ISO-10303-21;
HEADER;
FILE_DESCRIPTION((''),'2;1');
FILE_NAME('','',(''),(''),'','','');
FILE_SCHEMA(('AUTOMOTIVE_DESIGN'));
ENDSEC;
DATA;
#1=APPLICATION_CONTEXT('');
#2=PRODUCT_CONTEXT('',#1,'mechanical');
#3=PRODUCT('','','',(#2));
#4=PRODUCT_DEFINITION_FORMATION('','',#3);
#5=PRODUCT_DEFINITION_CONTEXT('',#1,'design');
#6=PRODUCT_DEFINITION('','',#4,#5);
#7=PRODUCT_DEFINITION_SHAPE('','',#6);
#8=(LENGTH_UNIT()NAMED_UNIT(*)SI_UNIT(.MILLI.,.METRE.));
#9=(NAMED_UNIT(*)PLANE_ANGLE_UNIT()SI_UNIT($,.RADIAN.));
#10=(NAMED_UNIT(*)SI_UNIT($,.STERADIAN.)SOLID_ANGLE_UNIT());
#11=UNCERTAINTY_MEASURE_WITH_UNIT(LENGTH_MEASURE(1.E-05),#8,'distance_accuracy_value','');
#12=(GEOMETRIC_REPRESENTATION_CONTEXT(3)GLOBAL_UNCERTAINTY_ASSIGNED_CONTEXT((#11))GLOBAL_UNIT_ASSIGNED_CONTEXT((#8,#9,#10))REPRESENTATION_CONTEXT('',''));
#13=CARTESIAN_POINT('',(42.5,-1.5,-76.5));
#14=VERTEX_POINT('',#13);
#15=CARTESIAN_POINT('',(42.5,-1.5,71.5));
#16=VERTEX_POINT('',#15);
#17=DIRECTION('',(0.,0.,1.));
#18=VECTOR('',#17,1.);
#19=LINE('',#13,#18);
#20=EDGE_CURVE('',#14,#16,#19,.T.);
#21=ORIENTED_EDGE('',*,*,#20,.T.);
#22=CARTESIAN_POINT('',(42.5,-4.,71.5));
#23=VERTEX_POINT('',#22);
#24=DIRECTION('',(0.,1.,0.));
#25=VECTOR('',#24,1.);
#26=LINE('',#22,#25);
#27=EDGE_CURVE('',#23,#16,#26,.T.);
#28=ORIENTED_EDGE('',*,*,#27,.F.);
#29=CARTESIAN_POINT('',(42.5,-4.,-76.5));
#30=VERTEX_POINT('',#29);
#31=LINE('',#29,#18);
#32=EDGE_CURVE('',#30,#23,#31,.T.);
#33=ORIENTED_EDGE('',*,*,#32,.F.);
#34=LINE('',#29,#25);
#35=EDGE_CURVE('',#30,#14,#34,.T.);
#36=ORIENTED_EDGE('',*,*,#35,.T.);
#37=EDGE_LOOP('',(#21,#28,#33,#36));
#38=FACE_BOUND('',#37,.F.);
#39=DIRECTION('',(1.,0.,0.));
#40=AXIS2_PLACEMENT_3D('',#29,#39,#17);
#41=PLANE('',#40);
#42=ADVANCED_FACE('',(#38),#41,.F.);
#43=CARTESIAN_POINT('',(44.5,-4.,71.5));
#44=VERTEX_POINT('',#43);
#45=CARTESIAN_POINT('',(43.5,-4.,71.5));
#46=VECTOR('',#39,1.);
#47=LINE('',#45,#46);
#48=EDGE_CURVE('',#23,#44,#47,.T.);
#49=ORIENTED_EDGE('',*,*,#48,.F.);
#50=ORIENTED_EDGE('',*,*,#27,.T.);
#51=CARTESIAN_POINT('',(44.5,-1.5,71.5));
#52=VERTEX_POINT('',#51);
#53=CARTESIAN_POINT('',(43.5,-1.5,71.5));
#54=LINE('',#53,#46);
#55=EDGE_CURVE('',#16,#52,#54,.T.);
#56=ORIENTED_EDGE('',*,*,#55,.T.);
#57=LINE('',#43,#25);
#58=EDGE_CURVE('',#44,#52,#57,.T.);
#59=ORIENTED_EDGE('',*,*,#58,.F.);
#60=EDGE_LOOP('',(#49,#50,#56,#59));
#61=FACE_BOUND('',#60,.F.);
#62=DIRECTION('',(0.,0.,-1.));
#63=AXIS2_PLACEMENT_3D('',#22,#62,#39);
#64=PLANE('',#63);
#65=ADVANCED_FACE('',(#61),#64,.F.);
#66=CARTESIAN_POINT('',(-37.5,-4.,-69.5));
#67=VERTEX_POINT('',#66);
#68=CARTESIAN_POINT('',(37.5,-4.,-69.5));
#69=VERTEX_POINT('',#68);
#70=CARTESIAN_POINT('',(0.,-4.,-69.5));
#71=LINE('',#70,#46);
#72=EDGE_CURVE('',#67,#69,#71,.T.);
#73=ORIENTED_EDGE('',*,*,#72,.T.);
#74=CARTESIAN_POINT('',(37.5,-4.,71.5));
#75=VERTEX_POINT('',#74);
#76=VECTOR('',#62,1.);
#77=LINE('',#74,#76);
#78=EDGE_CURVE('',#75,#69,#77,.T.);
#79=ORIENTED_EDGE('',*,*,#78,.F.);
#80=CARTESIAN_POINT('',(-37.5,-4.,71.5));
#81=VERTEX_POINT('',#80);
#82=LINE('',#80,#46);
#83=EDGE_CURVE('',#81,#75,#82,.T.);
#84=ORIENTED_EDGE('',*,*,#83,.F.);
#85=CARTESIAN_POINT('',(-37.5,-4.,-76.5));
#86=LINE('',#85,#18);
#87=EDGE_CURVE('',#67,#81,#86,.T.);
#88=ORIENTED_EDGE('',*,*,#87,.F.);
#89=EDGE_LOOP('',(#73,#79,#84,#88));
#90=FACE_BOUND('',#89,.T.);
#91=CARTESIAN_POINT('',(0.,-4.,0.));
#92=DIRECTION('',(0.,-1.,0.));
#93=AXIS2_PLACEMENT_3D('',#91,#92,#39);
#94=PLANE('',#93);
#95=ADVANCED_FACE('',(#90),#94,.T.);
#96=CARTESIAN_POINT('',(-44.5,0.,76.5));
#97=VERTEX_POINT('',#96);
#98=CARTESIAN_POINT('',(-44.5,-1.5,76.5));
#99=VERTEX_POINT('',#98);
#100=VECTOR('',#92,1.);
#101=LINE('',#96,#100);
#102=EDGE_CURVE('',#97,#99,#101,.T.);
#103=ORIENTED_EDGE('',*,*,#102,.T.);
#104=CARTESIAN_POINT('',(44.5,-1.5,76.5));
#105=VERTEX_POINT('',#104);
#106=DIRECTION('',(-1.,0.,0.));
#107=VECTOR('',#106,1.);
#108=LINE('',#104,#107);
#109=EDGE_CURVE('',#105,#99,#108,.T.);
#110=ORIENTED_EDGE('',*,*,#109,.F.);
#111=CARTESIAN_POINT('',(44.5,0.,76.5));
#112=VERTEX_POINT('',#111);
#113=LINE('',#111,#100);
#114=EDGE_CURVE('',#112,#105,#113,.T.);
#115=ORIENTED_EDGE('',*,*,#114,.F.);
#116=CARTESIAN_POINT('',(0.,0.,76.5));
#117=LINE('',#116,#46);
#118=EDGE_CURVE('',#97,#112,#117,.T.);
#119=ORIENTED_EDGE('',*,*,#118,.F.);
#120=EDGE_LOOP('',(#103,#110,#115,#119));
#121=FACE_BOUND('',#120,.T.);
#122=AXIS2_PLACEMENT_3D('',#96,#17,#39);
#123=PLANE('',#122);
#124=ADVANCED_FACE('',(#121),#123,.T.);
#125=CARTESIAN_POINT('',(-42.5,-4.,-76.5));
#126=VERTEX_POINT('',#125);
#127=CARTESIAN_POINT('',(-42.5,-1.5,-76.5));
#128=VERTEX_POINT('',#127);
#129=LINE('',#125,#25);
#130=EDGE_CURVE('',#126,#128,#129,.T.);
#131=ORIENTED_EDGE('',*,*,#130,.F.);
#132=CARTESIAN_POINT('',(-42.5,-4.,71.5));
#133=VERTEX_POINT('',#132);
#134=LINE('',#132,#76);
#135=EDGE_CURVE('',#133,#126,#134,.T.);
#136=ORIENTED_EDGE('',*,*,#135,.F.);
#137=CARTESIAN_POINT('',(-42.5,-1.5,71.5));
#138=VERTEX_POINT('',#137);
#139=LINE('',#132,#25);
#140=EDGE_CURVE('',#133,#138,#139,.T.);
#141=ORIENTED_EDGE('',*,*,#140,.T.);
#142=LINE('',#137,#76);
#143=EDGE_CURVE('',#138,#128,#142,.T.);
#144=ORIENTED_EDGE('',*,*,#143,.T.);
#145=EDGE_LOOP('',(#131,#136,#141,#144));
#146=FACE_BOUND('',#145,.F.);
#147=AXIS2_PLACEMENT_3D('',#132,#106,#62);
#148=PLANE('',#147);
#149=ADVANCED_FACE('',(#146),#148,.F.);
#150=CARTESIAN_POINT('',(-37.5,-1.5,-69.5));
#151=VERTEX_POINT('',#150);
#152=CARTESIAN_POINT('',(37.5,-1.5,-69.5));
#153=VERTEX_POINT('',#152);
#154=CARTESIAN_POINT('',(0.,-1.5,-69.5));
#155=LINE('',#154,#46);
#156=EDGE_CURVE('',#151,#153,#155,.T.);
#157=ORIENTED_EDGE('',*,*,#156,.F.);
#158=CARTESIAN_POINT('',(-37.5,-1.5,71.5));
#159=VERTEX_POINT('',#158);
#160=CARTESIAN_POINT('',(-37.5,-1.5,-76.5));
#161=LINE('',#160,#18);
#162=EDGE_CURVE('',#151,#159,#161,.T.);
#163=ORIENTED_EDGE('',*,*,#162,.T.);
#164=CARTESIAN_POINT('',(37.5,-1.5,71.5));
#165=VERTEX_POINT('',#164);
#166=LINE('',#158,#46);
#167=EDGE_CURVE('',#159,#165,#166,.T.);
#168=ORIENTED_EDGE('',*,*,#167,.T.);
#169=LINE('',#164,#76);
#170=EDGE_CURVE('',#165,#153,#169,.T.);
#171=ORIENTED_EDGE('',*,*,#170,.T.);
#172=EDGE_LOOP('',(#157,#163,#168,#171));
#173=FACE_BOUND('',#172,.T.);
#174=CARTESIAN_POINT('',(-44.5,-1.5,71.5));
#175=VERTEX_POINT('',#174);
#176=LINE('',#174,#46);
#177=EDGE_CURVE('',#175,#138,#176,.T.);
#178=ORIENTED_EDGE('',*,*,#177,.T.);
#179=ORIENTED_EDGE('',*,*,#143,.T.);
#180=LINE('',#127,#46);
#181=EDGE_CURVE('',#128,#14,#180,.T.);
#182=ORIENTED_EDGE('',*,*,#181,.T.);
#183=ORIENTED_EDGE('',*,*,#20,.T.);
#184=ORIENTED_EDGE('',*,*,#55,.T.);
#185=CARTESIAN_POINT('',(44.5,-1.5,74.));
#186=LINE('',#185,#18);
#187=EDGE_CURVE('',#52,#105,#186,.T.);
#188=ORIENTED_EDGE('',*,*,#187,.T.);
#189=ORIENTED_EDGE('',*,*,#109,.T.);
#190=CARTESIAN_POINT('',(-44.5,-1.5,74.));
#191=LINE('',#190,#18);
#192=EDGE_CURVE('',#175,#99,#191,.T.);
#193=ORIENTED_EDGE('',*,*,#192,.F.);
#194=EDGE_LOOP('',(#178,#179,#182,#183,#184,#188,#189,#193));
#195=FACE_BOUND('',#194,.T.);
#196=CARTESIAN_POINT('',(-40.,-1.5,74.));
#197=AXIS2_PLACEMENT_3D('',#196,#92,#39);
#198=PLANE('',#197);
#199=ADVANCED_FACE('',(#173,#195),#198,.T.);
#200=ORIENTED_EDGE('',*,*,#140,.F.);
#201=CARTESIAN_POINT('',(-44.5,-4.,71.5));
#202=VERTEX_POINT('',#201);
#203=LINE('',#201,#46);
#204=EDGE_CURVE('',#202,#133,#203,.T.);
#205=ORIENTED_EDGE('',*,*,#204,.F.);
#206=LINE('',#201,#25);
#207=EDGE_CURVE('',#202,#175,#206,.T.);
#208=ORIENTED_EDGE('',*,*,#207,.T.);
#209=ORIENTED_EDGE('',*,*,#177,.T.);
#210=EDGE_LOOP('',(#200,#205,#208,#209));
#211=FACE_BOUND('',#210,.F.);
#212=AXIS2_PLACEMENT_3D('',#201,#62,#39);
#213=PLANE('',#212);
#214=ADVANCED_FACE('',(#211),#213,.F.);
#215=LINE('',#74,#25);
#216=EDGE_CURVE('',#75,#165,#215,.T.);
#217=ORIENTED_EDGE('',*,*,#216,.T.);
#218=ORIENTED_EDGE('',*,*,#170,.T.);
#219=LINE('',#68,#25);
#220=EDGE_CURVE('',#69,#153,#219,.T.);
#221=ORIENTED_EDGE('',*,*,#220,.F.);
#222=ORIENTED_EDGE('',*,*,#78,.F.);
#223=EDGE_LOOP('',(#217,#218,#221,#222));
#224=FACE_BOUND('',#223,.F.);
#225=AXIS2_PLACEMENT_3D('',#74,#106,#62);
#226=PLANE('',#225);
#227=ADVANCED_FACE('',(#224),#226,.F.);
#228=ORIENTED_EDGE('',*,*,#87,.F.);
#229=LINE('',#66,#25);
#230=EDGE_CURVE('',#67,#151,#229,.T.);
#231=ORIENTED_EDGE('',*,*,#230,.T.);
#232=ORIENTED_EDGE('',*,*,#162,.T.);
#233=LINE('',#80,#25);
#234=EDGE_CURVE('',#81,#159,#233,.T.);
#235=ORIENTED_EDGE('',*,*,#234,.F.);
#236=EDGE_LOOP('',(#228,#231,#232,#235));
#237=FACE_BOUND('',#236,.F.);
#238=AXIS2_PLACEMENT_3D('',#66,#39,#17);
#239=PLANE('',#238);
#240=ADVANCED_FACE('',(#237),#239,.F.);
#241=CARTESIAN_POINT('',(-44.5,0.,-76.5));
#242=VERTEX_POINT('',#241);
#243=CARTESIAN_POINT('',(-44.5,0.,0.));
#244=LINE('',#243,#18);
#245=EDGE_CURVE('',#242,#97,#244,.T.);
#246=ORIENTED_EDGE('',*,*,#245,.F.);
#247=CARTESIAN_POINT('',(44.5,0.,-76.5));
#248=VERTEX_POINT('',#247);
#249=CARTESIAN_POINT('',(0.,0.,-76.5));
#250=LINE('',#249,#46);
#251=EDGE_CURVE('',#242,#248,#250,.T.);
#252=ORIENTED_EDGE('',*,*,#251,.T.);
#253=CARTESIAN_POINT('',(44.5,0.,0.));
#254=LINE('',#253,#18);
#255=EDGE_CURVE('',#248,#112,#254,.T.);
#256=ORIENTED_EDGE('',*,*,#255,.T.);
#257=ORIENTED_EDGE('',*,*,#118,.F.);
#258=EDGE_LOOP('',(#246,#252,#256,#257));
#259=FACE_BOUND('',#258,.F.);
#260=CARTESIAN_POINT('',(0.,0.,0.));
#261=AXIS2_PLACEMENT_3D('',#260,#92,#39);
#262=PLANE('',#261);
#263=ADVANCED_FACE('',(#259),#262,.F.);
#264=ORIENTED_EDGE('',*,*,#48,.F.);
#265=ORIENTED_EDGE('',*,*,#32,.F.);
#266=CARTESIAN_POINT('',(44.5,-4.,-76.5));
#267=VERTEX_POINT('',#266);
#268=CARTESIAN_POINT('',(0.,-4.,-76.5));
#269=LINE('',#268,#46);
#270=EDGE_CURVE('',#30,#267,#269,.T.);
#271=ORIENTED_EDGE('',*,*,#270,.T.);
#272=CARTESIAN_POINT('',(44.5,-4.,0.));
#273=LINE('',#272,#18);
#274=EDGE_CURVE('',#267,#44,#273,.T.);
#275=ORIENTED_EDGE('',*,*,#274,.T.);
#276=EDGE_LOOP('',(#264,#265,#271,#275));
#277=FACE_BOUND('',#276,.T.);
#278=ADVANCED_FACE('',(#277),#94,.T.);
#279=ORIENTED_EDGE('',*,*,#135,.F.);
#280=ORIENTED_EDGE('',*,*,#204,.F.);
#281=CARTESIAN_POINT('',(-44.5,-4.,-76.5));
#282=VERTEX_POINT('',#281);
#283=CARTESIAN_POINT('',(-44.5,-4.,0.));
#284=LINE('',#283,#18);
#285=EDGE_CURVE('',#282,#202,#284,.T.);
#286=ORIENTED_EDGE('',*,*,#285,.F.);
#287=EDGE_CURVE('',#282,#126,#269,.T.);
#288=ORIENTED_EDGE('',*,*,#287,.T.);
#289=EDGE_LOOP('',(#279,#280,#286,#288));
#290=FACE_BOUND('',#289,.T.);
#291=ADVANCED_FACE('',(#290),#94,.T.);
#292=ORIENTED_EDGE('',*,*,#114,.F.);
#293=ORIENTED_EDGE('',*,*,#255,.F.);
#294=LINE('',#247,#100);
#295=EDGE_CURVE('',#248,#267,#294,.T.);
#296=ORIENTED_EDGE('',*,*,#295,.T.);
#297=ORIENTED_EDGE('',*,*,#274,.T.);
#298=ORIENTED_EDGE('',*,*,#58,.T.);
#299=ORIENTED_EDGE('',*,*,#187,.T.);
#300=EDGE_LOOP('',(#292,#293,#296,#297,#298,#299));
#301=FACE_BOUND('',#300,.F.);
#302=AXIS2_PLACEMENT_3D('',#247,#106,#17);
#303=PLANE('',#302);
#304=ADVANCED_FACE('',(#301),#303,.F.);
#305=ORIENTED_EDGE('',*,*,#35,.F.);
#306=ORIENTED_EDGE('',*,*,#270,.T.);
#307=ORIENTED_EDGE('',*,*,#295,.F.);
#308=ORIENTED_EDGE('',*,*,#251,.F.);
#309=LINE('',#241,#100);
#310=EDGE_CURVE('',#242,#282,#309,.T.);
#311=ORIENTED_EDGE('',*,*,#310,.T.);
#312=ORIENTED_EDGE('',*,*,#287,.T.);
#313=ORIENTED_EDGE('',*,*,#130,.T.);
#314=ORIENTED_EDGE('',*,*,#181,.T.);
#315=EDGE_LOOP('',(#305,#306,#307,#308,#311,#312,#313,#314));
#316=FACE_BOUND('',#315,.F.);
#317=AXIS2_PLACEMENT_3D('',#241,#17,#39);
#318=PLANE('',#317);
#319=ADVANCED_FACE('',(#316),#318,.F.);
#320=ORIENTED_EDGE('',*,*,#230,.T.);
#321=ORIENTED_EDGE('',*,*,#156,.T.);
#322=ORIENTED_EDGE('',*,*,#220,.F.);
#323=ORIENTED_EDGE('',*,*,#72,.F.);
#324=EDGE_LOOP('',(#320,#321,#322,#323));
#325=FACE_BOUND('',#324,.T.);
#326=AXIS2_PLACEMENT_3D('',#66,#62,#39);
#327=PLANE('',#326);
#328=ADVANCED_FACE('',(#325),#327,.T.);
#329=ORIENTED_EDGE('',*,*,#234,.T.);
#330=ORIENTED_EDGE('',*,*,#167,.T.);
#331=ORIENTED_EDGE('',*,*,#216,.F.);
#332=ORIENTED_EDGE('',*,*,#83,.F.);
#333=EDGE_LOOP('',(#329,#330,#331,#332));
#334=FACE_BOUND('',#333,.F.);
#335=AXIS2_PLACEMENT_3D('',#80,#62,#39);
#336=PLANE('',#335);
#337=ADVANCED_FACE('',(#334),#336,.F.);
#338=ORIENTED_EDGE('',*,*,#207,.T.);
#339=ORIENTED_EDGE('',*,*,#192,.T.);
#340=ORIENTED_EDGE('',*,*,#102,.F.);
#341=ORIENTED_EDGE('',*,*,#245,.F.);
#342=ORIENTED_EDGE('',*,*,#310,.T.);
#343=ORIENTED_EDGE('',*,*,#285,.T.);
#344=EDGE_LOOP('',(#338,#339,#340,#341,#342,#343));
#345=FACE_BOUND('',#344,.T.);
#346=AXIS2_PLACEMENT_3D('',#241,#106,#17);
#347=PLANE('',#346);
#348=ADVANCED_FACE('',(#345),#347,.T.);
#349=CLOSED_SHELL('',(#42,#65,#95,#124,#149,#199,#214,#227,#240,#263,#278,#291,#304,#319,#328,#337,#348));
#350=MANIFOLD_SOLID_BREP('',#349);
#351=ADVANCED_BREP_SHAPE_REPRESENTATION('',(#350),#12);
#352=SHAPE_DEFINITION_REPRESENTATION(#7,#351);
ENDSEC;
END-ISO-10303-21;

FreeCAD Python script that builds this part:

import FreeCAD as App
import Part
import Sketcher
from FreeCAD import Vector

doc = App.newDocument("Part")
body = doc.addObject("PartDesign::Body", "Body")

# Sketch on XZ plane
sketch1 = doc.addObject("Sketcher::SketchObject", "Sketch")
body.addObject(sketch1)
sketch1.AttachmentSupport = (doc.XZ_Plane, [""])
sketch1.MapMode = "FlatFace"
sketch1.addGeometry(Part.LineSegment(Vector(-44, 76, 0), Vector(-44, -76, 0)), False)
sketch1.addGeometry(Part.LineSegment(Vector(-44, -76, 0), Vector(44, -76, 0)), False)
sketch1.addGeometry(Part.LineSegment(Vector(44, -76, 0), Vector(44, 76, 0)), False)
sketch1.addGeometry(Part.LineSegment(Vector(44, 76, 0), Vector(-44, 76, 0)), False)
sketch1.addConstraint(Sketcher.Constraint("Coincident", 0, 2, 1, 1))
sketch1.addConstraint(Sketcher.Constraint("Coincident", 1, 2, 2, 1))
sketch1.addConstraint(Sketcher.Constraint("Coincident", 2, 2, 3, 1))
sketch1.addConstraint(Sketcher.Constraint("Coincident", 3, 2, 0, 1))
sketch1.addConstraint(Sketcher.Constraint("Vertical", 0))
sketch1.addConstraint(Sketcher.Constraint("Horizontal", 1))
sketch1.addConstraint(Sketcher.Constraint("Vertical", 2))
sketch1.addConstraint(Sketcher.Constraint("Horizontal", 3))
sketch1.addConstraint(Sketcher.Constraint("Symmetric", 0, 2, 2, 2, -1, 1))
sketch1.addConstraint(Sketcher.Constraint("DistanceX", 1, 1, 1, 2, 89.0))
sketch1.addConstraint(Sketcher.Constraint("DistanceY", 0, 2, 0, 1, 153.0))
pad1 = doc.addObject("PartDesign::Pad", "Pad")
body.addObject(pad1)
pad1.Profile = sketch1
pad1.Length = 4

# Sketch on XZ plane
sketch2 = doc.addObject("Sketcher::SketchObject", "Sketch001")
body.addObject(sketch2)
sketch2.AttachmentSupport = (doc.XZ_Plane, [""])
sketch2.MapMode = "FlatFace"
sketch2.AttachmentOffset = App.Placement(Vector(0, 0, 4), App.Rotation())
sketch2.addGeometry(Part.LineSegment(Vector(-44.5, 76.5, 0), Vector(-44.5, 71.5, 0)), False)
sketch2.addGeometry(Part.LineSegment(Vector(-44.5, 71.5, 0), Vector(-42.5, 71.5, 0)), False)
sketch2.addGeometry(Part.LineSegment(Vector(-42.5, 71.5, 0), Vector(-42.5, -76.5, 0)), False)
sketch2.addGeometry(Part.LineSegment(Vector(-42.5, -76.5, 0), Vector(42.5, -76.5, 0)), False)
sketch2.addGeometry(Part.LineSegment(Vector(42.5, -76.5, 0), Vector(42.5, 71.5, 0)), False)
sketch2.addGeometry(Part.LineSegment(Vector(42.5, 71.5, 0), Vector(44.5, 71.5, 0)), False)
sketch2.addGeometry(Part.LineSegment(Vector(44.5, 71.5, 0), Vector(44.5, 76.5, 0)), False)
sketch2.addGeometry(Part.LineSegment(Vector(44.5, 76.5, 0), Vector(-44.5, 76.5, 0)), False)
sketch2.addGeometry(Part.LineSegment(Vector(37.5, -69.5, 0), Vector(-37.5, -69.5, 0)), False)
sketch2.addGeometry(Part.LineSegment(Vector(-37.5, -69.5, 0), Vector(-37.5, 71.5, 0)), False)
sketch2.addGeometry(Part.LineSegment(Vector(-37.5, 71.5, 0), Vector(37.5, 71.5, 0)), False)
sketch2.addGeometry(Part.LineSegment(Vector(37.5, 71.5, 0), Vector(37.5, -69.5, 0)), False)
sketch2.addConstraint(Sketcher.Constraint("Coincident", 0, 2, 1, 1))
sketch2.addConstraint(Sketcher.Constraint("Coincident", 1, 2, 2, 1))
sketch2.addConstraint(Sketcher.Constraint("Coincident", 2, 2, 3, 1))
sketch2.addConstraint(Sketcher.Constraint("Coincident", 3, 2, 4, 1))
sketch2.addConstraint(Sketcher.Constraint("Coincident", 4, 2, 5, 1))
sketch2.addConstraint(Sketcher.Constraint("Coincident", 5, 2, 6, 1))
sketch2.addConstraint(Sketcher.Constraint("Coincident", 6, 2, 7, 1))
sketch2.addConstraint(Sketcher.Constraint("Coincident", 7, 2, 0, 1))
sketch2.addConstraint(Sketcher.Constraint("Coincident", 8, 2, 9, 1))
sketch2.addConstraint(Sketcher.Constraint("Coincident", 9, 2, 10, 1))
sketch2.addConstraint(Sketcher.Constraint("Coincident", 10, 2, 11, 1))
sketch2.addConstraint(Sketcher.Constraint("Coincident", 11, 2, 8, 1))
sketch2.addConstraint(Sketcher.Constraint("Vertical", 0))
sketch2.addConstraint(Sketcher.Constraint("Horizontal", 1))
sketch2.addConstraint(Sketcher.Constraint("Vertical", 2))
sketch2.addConstraint(Sketcher.Constraint("Horizontal", 3))
sketch2.addConstraint(Sketcher.Constraint("Vertical", 4))
sketch2.addConstraint(Sketcher.Constraint("Horizontal", 5))
sketch2.addConstraint(Sketcher.Constraint("Vertical", 6))
sketch2.addConstraint(Sketcher.Constraint("Horizontal", 7))
sketch2.addConstraint(Sketcher.Constraint("Horizontal", 8))
sketch2.addConstraint(Sketcher.Constraint("Vertical", 9))
sketch2.addConstraint(Sketcher.Constraint("Horizontal", 10))
sketch2.addConstraint(Sketcher.Constraint("Vertical", 11))
sketch2.addConstraint(Sketcher.Constraint("Symmetric", 1, 2, 4, 2, -2))
sketch2.addConstraint(Sketcher.Constraint("Horizontal", 5, 2, 9, 2))
sketch2.addConstraint(Sketcher.Constraint("Equal", 1, 5))
sketch2.addConstraint(Sketcher.Constraint("DistanceX", 1, 1, 1, 2, 2.0))
sketch2.addConstraint(Sketcher.Constraint("DistanceX", 3, 1, 3, 2, 85.0))
sketch2.addConstraint(Sketcher.Constraint("DistanceX", 8, 2, 8, 1, 75.0))
sketch2.addConstraint(Sketcher.Constraint("DistanceY", 0, 2, 0, 1, 5.0))
sketch2.addConstraint(Sketcher.Constraint("DistanceY", 2, 2, 2, 1, 148.0))
sketch2.addConstraint(Sketcher.Constraint("DistanceY", 9, 1, 9, 2, 141.0))
sketch2.addConstraint(Sketcher.Constraint("DistanceX", 2, 2, 8, 2, 5.0))
sketch2.addConstraint(Sketcher.Constraint("DistanceY", -1, 1, 0, 2, 71.5))
pocket1 = doc.addObject("PartDesign::Pocket", "Pocket")
body.addObject(pocket1)
pocket1.Profile = sketch2
pocket1.Length = 2.5

doc.recompute()
